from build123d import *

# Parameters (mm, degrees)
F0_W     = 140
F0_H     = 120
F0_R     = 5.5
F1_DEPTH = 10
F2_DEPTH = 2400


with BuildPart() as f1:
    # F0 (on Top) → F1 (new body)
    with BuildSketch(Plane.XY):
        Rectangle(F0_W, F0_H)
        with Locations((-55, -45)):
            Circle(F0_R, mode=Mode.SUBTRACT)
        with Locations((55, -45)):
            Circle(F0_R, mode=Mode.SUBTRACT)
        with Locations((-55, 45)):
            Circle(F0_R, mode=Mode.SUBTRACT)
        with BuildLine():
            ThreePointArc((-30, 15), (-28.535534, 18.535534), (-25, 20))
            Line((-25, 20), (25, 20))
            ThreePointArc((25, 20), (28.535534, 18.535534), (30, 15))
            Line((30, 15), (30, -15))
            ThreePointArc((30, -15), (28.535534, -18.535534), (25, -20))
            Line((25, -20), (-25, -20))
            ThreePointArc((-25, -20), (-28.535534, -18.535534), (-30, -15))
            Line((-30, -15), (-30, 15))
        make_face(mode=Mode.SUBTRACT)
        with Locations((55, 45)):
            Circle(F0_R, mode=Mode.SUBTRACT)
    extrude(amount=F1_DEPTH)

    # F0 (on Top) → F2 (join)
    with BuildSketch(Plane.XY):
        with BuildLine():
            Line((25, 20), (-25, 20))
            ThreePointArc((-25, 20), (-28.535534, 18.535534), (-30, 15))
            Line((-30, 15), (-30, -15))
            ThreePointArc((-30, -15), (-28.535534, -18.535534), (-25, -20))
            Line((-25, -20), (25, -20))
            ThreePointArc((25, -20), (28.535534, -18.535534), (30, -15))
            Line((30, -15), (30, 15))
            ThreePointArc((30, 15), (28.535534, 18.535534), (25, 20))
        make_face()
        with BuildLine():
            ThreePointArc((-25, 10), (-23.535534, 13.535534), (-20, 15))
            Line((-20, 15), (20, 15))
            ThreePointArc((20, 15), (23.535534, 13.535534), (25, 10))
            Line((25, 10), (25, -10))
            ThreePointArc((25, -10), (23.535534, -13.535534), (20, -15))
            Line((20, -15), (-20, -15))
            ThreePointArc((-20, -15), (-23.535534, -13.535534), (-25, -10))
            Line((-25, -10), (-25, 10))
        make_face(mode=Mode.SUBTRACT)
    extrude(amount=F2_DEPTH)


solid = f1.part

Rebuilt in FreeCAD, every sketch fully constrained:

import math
import FreeCAD as App
import Part
import Sketcher


def add_polygon(sketch, points):
    """Adds a closed chain of lines whose ends are joined by coincident constraints."""
    first, n = sketch.GeometryCount, len(points)
    for a, b in zip(points, points[1:] + points[:1]):
        sketch.addGeometry(Part.LineSegment(App.Vector(*a, 0), App.Vector(*b, 0)), False)
    for i in range(n):
        sketch.addConstraint(Sketcher.Constraint("Coincident", first + i, 2, first + (i + 1) % n, 1))

doc = App.newDocument("Part")
params = doc.addObject("Spreadsheet::Sheet", "Params")
for row, (alias, value) in enumerate([
    ("sketch1_diameter", "11 mm"),
    ("sketch1_radius", "5 mm"),
    ("sketch1_width", "140 mm"),
    ("sketch1_width2", "50 mm"),
    ("sketch1_height", "120 mm"),
    ("pad1_length", "10 mm"),
    ("sketch2_radius", "5 mm"),
    ("sketch2_width", "50 mm"),
    ("sketch2_height", "30 mm"),
    ("pad2_length", "2400 mm"),
], start=1):
    params.set(f"A{row}", alias)
    params.set(f"B{row}", "=" + value)
    params.setAlias(f"B{row}", alias)

body = doc.addObject("PartDesign::Body", "Body")

# Sketch on XY plane
sketch1 = body.newObject("Sketcher::SketchObject", "Sketch")
sketch1.AttachmentSupport = (doc.getObject("XY_Plane"), [""])
sketch1.MapMode = "FlatFace"
add_polygon(sketch1, [(-70, 60), (-70, -60), (70, -60), (70, 60)])  # lines 0-3
sketch1.addGeometry(Part.Circle(App.Vector(-55, -45, 0), App.Vector(0, 0, 1), 5.5), False)  # 4
sketch1.addGeometry(Part.Circle(App.Vector(55, -45, 0), App.Vector(0, 0, 1), 5.5), False)  # 5
sketch1.addGeometry(Part.Circle(App.Vector(-55, 45, 0), App.Vector(0, 0, 1), 5.5), False)  # 6
sketch1.addGeometry(Part.LineSegment(App.Vector(-30, -15, 0), App.Vector(-30, 15, 0)), False)  # 7
sketch1.addGeometry(Part.ArcOfCircle(Part.Circle(App.Vector(-25, 15, 0), App.Vector(0, 0, 1), 5), math.radians(89.999996), math.radians(180.000004)), False)  # 8
sketch1.addGeometry(Part.LineSegment(App.Vector(-25, 20, 0), App.Vector(25, 20, 0)), False)  # 9
sketch1.addGeometry(Part.ArcOfCircle(Part.Circle(App.Vector(25, 15, 0), App.Vector(0, 0, 1), 5), math.radians(-0.000004), math.radians(90.000004)), False)  # 10
sketch1.addGeometry(Part.LineSegment(App.Vector(30, 15, 0), App.Vector(30, -15, 0)), False)  # 11
sketch1.addGeometry(Part.ArcOfCircle(Part.Circle(App.Vector(25, -15, 0), App.Vector(0, 0, 1), 5), math.radians(-90.000004), math.radians(0.000004)), False)  # 12
sketch1.addGeometry(Part.LineSegment(App.Vector(25, -20, 0), App.Vector(-25, -20, 0)), False)  # 13
sketch1.addGeometry(Part.ArcOfCircle(Part.Circle(App.Vector(-25, -15, 0), App.Vector(0, 0, 1), 5), math.radians(179.999996), math.radians(270.000004)), False)  # 14
sketch1.addGeometry(Part.Circle(App.Vector(55, 45, 0), App.Vector(0, 0, 1), 5.5), False)  # 15
sketch1.addConstraint([
    Sketcher.Constraint("Tangent", 7, 2, 8, 2),
    Sketcher.Constraint("Tangent", 8, 1, 9, 1),
    Sketcher.Constraint("Tangent", 9, 2, 10, 2),
    Sketcher.Constraint("Tangent", 10, 1, 11, 1),
    Sketcher.Constraint("Tangent", 11, 2, 12, 2),
    Sketcher.Constraint("Tangent", 12, 1, 13, 1),
    Sketcher.Constraint("Tangent", 13, 2, 14, 2),
    Sketcher.Constraint("Tangent", 14, 1, 7, 1),
    Sketcher.Constraint("Vertical", 0),
    Sketcher.Constraint("Horizontal", 1),
    Sketcher.Constraint("Vertical", 2),
    Sketcher.Constraint("Horizontal", 3),
    Sketcher.Constraint("Vertical", 7),
    Sketcher.Constraint("Horizontal", 9),
    Sketcher.Constraint("Vertical", 11),
    Sketcher.Constraint("Horizontal", 13),
    Sketcher.Constraint("Equal", 4, 5),
    Sketcher.Constraint("Equal", 5, 6),
    Sketcher.Constraint("Equal", 8, 10),
    Sketcher.Constraint("Equal", 10, 12),
    Sketcher.Constraint("Equal", 12, 14),
    Sketcher.Constraint("Equal", 6, 15),
    Sketcher.Constraint("Symmetric", 5, 3, 6, 3, -1, 1),
    Sketcher.Constraint("Symmetric", 8, 3, 12, 3, -1, 1),
    Sketcher.Constraint("Symmetric", 4, 3, 15, 3, -1, 1),
    Sketcher.Constraint("Symmetric", 0, 2, 2, 2, -1, 1),
    Sketcher.Constraint("Symmetric", 4, 3, 5, 3, -2),
    Sketcher.Constraint("Diameter", 4, 11.0),
    Sketcher.Constraint("Radius", 8, 5.0),
    Sketcher.Constraint("DistanceX", 1, 1, 1, 2, 140.0),
    Sketcher.Constraint("DistanceX", 9, 1, 9, 2, 50.0),
    Sketcher.Constraint("DistanceY", 0, 2, 0, 1, 120.0),
    Sketcher.Constraint("DistanceY", 7, 1, 7, 2, 30.0),
    Sketcher.Constraint("DistanceX", 4, 3, -1, 1, 55.0),
    Sketcher.Constraint("DistanceY", 4, 3, -1, 1, 45.0),
])
sketch1.setExpression("Constraints[31]", "Params.sketch1_diameter")
sketch1.setExpression("Constraints[32]", "Params.sketch1_radius")
sketch1.setExpression("Constraints[33]", "Params.sketch1_width")
sketch1.setExpression("Constraints[34]", "Params.sketch1_width2")
sketch1.setExpression("Constraints[35]", "Params.sketch1_height")
pad1 = body.newObject("PartDesign::Pad", "Pad")
pad1.Profile = sketch1
pad1.setExpression("Length", "Params.pad1_length")

# Sketch on XY plane
sketch2 = body.newObject("Sketcher::SketchObject", "Sketch001")
sketch2.AttachmentSupport = (doc.getObject("XY_Plane"), [""])
sketch2.MapMode = "FlatFace"
sketch2.addGeometry([
    Part.LineSegment(App.Vector(25, 20, 0), App.Vector(-25, 20, 0)),  # 0
    Part.ArcOfCircle(Part.Circle(App.Vector(-25, 15, 0), App.Vector(0, 0, 1), 5), math.radians(89.999996), math.radians(180.000004)),  # 1
    Part.LineSegment(App.Vector(-30, 15, 0), App.Vector(-30, -15, 0)),  # 2
    Part.ArcOfCircle(Part.Circle(App.Vector(-25, -15, 0), App.Vector(0, 0, 1), 5), math.radians(179.999996), math.radians(270.000004)),  # 3
    Part.LineSegment(App.Vector(-25, -20, 0), App.Vector(25, -20, 0)),  # 4
    Part.ArcOfCircle(Part.Circle(App.Vector(25, -15, 0), App.Vector(0, 0, 1), 5), math.radians(-90.000004), math.radians(0.000004)),  # 5
    Part.LineSegment(App.Vector(30, -15, 0), App.Vector(30, 15, 0)),  # 6
    Part.ArcOfCircle(Part.Circle(App.Vector(25, 15, 0), App.Vector(0, 0, 1), 5), math.radians(-0.000004), math.radians(90.000004)),  # 7
    Part.LineSegment(App.Vector(-25, -10, 0), App.Vector(-25, 10, 0)),  # 8
    Part.ArcOfCircle(Part.Circle(App.Vector(-20, 10, 0), App.Vector(0, 0, 1), 5), math.radians(89.999996), math.radians(180.000004)),  # 9
    Part.LineSegment(App.Vector(-20, 15, 0), App.Vector(20, 15, 0)),  # 10
    Part.ArcOfCircle(Part.Circle(App.Vector(20, 10, 0), App.Vector(0, 0, 1), 5), math.radians(-0.000004), math.radians(90.000004)),  # 11
    Part.LineSegment(App.Vector(25, 10, 0), App.Vector(25, -10, 0)),  # 12
    Part.ArcOfCircle(Part.Circle(App.Vector(20, -10, 0), App.Vector(0, 0, 1), 5), math.radians(-90.000004), math.radians(0.000004)),  # 13
    Part.LineSegment(App.Vector(20, -15, 0), App.Vector(-20, -15, 0)),  # 14
    Part.ArcOfCircle(Part.Circle(App.Vector(-20, -10, 0), App.Vector(0, 0, 1), 5), math.radians(179.999996), math.radians(270.000004)),  # 15
], False)
sketch2.addConstraint([
    Sketcher.Constraint("Tangent", 0, 2, 1, 1),
    Sketcher.Constraint("Tangent", 1, 2, 2, 1),
    Sketcher.Constraint("Tangent", 2, 2, 3, 1),
    Sketcher.Constraint("Tangent", 3, 2, 4, 1),
    Sketcher.Constraint("Tangent", 4, 2, 5, 1),
    Sketcher.Constraint("Tangent", 5, 2, 6, 1),
    Sketcher.Constraint("Tangent", 6, 2, 7, 1),
    Sketcher.Constraint("Tangent", 7, 2, 0, 1),
    Sketcher.Constraint("Tangent", 8, 2, 9, 2),
    Sketcher.Constraint("Tangent", 9, 1, 10, 1),
    Sketcher.Constraint("Tangent", 10, 2, 11, 2),
    Sketcher.Constraint("Tangent", 11, 1, 12, 1),
    Sketcher.Constraint("Tangent", 12, 2, 13, 2),
    Sketcher.Constraint("Tangent", 13, 1, 14, 1),
    Sketcher.Constraint("Tangent", 14, 2, 15, 2),
    Sketcher.Constraint("Tangent", 15, 1, 8, 1),
    Sketcher.Constraint("Horizontal", 0),
    Sketcher.Constraint("Vertical", 2),
    Sketcher.Constraint("Horizontal", 4),
    Sketcher.Constraint("Vertical", 6),
    Sketcher.Constraint("Vertical", 8),
    Sketcher.Constraint("Horizontal", 10),
    Sketcher.Constraint("Vertical", 12),
    Sketcher.Constraint("Horizontal", 14),
    Sketcher.Constraint("Equal", 1, 3),
    Sketcher.Constraint("Equal", 3, 5),
    Sketcher.Constraint("Equal", 5, 7),
    Sketcher.Constraint("Equal", 7, 9),
    Sketcher.Constraint("Equal", 9, 11),
    Sketcher.Constraint("Equal", 11, 13),
    Sketcher.Constraint("Equal", 13, 15),
    Sketcher.Constraint("Symmetric", 1, 3, 5, 3, -1, 1),
    Sketcher.Constraint("Symmetric", 9, 3, 13, 3, -1, 1),
    Sketcher.Constraint("Horizontal", 6, 2, 9, 1),
    Sketcher.Constraint("Vertical", 3, 2, 8, 2),
    Sketcher.Constraint("Radius", 1, 5.0),
    Sketcher.Constraint("DistanceX", 0, 2, 0, 1, 50.0),
    Sketcher.Constraint("DistanceY", 2, 2, 2, 1, 30.0),
])
sketch2.setExpression("Constraints[35]", "Params.sketch2_radius")
sketch2.setExpression("Constraints[36]", "Params.sketch2_width")
sketch2.setExpression("Constraints[37]", "Params.sketch2_height")
pad2 = body.newObject("PartDesign::Pad", "Pad001")
pad2.Profile = sketch2
pad2.setExpression("Length", "Params.pad2_length")

doc.recompute()
